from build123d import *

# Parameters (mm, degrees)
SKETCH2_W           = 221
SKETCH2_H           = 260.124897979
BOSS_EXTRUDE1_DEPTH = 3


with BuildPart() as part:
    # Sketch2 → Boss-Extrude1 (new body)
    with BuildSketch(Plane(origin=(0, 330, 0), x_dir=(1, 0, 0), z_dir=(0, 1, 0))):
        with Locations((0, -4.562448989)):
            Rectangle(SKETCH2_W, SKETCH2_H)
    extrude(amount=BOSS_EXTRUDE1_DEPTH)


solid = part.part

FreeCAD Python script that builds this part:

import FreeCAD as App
import Part
import Sketcher

V = App.Vector

doc = App.newDocument("Part")
body = doc.addObject("PartDesign::Body", "Body")

sketch1 = body.newObject("Sketcher::SketchObject", "Sketch")
sketch1.AttachmentSupport = (doc.getObject("XZ_Plane"), [""])
sketch1.MapMode = "FlatFace"
sketch1.AttachmentOffset = App.Placement(V(0, 0, -330), App.Rotation())
sketch1.addGeometry(Part.LineSegment(V(-110, -126, 0), V(-110, 135, 0)), False)
sketch1.addGeometry(Part.LineSegment(V(-110, 135, 0), V(110, 135, 0)), False)
sketch1.addGeometry(Part.LineSegment(V(110, 135, 0), V(110, -126, 0)), False)
sketch1.addGeometry(Part.LineSegment(V(110, -126, 0), V(-110, -126, 0)), False)
sketch1.addConstraint(Sketcher.Constraint("Coincident", 0, 2, 1, 1))
sketch1.addConstraint(Sketcher.Constraint("Coincident", 1, 2, 2, 1))
sketch1.addConstraint(Sketcher.Constraint("Coincident", 2, 2, 3, 1))
sketch1.addConstraint(Sketcher.Constraint("Coincident", 3, 2, 0, 1))
sketch1.addConstraint(Sketcher.Constraint("Vertical", 0))
sketch1.addConstraint(Sketcher.Constraint("Horizontal", 1))
sketch1.addConstraint(Sketcher.Constraint("Vertical", 2))
sketch1.addConstraint(Sketcher.Constraint("Horizontal", 3))
sketch1.addConstraint(Sketcher.Constraint("DistanceX", 1, 1, 1, 2, 221.0))
sketch1.addConstraint(Sketcher.Constraint("DistanceX", 0, 2, -1, 1, 110.5))
sketch1.addConstraint(Sketcher.Constraint("DistanceY", 2, 2, -1, 1, 125.5))
sketch1.addConstraint(Sketcher.Constraint("DistanceY", 0, 1, 0, 2, 260.124898))
pad1 = body.newObject("PartDesign::Pad", "Pad")
pad1.Profile = sketch1
pad1.Length = 3
pad1.Reversed = True

doc.recompute()
